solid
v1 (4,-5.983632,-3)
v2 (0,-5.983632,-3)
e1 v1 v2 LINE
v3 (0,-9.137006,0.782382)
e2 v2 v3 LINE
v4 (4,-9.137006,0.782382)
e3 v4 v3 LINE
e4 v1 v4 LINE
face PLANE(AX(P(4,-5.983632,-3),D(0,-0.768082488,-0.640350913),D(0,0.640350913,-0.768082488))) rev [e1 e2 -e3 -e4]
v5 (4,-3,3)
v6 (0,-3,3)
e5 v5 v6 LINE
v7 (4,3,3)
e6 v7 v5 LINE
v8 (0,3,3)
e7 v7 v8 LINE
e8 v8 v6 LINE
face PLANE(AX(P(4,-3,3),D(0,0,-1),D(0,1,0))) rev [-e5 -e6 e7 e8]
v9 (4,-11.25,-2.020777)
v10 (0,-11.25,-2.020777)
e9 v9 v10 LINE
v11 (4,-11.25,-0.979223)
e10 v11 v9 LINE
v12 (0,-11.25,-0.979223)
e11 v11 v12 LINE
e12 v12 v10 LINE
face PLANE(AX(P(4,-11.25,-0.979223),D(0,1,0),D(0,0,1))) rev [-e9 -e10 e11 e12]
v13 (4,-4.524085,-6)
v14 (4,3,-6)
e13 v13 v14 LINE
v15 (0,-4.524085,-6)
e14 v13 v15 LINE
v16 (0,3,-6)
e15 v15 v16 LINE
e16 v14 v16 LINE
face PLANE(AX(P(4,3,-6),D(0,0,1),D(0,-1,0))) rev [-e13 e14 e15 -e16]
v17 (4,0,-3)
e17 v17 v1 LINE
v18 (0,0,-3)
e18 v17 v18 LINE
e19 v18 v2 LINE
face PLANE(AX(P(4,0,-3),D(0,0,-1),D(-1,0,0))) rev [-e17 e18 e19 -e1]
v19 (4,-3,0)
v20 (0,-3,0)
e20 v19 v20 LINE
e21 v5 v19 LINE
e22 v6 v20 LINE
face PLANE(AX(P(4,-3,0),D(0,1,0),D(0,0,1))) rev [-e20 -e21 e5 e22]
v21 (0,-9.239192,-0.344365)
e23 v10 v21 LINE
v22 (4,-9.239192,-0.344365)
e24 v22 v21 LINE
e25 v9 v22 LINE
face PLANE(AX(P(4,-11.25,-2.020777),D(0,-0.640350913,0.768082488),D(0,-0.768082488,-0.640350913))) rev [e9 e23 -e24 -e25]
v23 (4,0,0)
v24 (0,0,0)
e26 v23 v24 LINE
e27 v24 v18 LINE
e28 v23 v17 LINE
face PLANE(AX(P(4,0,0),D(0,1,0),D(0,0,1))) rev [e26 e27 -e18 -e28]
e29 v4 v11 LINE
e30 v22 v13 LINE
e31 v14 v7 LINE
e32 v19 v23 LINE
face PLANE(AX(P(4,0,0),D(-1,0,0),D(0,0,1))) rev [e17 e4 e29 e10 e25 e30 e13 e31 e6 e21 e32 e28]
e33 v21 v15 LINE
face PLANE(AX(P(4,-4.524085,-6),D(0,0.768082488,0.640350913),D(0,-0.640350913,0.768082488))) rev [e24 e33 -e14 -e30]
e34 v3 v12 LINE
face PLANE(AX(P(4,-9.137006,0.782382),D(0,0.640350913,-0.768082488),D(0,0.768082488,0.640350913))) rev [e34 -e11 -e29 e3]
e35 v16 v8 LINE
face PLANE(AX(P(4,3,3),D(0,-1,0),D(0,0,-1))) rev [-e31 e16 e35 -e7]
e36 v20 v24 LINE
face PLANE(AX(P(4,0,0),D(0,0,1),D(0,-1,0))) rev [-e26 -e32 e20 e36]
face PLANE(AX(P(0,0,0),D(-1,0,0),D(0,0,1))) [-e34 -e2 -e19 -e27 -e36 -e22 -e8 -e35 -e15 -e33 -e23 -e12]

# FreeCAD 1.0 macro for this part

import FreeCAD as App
import Part
import Sketcher
from FreeCAD import Vector


def add_polygon(sketch, points):
    """Adds a closed chain of lines whose ends are joined by coincident constraints."""
    first, n = sketch.GeometryCount, len(points)
    for a, b in zip(points, points[1:] + points[:1]):
        sketch.addGeometry(Part.LineSegment(App.Vector(*a, 0), App.Vector(*b, 0)), False)
    for i in range(n):
        sketch.addConstraint(Sketcher.Constraint("Coincident", first + i, 2, first + (i + 1) % n, 1))

doc = App.newDocument("Part")
body = doc.addObject("PartDesign::Body", "Body")

# Sketch on YZ plane
sketch1 = body.newObject("Sketcher::SketchObject", "Sketch")
sketch1.AttachmentSupport = (doc.getObject("YZ_Plane"), [""])
sketch1.MapMode = "FlatFace"
add_polygon(sketch1, [(0, 0), (0, -3), (-6, -3), (-9.1, 0.8), (-11.2, -1), (-11.2, -2), (-9.2, -0.3), (-4.5, -6), (3, -6), (3, 3), (-3, 3), (-3, 0)])  # lines 0-11
sketch1.addConstraint([
    Sketcher.Constraint("Vertical", 0),
    Sketcher.Constraint("Horizontal", 1),
    Sketcher.Constraint("Vertical", 4),
    Sketcher.Constraint("Horizontal", 7),
    Sketcher.Constraint("Vertical", 8),
    Sketcher.Constraint("Horizontal", 9),
    Sketcher.Constraint("Vertical", 10),
    Sketcher.Constraint("Horizontal", 11),
    Sketcher.Constraint("Coincident", 11, 2, -1, 1),
    Sketcher.Constraint("Perpendicular", 2, 3),
    Sketcher.Constraint("Parallel", 3, 5),
    Sketcher.Constraint("Perpendicular", 5, 6),
    Sketcher.Constraint("Equal", 11, 0),
    Sketcher.Constraint("Equal", 0, 10),
    Sketcher.Constraint("DistanceX", 9, 2, 9, 1, 6.0),
    Sketcher.Constraint("DistanceX", 11, 1, 11, 2, 3.0),
    Sketcher.Constraint("DistanceY", 8, 1, 8, 2, 9.0),
    Sketcher.Constraint("DistanceX", 3, 2, -1, 1, 11.25),
    Sketcher.Constraint("Distance", 3, 2.750998),
    Sketcher.Constraint("Distance", 5, 2.617959),
    Sketcher.Constraint("DistanceX", 1, 2, 1, 1, 5.983632),
    Sketcher.Constraint("DistanceX", 7, 1, 7, 2, 7.524085),
    Sketcher.Constraint("DistanceY", 4, 2, 4, 1, 1.041555),
])
pad1 = body.newObject("PartDesign::Pad", "Pad")
pad1.Profile = sketch1
pad1.Length = 4

doc.recompute()
